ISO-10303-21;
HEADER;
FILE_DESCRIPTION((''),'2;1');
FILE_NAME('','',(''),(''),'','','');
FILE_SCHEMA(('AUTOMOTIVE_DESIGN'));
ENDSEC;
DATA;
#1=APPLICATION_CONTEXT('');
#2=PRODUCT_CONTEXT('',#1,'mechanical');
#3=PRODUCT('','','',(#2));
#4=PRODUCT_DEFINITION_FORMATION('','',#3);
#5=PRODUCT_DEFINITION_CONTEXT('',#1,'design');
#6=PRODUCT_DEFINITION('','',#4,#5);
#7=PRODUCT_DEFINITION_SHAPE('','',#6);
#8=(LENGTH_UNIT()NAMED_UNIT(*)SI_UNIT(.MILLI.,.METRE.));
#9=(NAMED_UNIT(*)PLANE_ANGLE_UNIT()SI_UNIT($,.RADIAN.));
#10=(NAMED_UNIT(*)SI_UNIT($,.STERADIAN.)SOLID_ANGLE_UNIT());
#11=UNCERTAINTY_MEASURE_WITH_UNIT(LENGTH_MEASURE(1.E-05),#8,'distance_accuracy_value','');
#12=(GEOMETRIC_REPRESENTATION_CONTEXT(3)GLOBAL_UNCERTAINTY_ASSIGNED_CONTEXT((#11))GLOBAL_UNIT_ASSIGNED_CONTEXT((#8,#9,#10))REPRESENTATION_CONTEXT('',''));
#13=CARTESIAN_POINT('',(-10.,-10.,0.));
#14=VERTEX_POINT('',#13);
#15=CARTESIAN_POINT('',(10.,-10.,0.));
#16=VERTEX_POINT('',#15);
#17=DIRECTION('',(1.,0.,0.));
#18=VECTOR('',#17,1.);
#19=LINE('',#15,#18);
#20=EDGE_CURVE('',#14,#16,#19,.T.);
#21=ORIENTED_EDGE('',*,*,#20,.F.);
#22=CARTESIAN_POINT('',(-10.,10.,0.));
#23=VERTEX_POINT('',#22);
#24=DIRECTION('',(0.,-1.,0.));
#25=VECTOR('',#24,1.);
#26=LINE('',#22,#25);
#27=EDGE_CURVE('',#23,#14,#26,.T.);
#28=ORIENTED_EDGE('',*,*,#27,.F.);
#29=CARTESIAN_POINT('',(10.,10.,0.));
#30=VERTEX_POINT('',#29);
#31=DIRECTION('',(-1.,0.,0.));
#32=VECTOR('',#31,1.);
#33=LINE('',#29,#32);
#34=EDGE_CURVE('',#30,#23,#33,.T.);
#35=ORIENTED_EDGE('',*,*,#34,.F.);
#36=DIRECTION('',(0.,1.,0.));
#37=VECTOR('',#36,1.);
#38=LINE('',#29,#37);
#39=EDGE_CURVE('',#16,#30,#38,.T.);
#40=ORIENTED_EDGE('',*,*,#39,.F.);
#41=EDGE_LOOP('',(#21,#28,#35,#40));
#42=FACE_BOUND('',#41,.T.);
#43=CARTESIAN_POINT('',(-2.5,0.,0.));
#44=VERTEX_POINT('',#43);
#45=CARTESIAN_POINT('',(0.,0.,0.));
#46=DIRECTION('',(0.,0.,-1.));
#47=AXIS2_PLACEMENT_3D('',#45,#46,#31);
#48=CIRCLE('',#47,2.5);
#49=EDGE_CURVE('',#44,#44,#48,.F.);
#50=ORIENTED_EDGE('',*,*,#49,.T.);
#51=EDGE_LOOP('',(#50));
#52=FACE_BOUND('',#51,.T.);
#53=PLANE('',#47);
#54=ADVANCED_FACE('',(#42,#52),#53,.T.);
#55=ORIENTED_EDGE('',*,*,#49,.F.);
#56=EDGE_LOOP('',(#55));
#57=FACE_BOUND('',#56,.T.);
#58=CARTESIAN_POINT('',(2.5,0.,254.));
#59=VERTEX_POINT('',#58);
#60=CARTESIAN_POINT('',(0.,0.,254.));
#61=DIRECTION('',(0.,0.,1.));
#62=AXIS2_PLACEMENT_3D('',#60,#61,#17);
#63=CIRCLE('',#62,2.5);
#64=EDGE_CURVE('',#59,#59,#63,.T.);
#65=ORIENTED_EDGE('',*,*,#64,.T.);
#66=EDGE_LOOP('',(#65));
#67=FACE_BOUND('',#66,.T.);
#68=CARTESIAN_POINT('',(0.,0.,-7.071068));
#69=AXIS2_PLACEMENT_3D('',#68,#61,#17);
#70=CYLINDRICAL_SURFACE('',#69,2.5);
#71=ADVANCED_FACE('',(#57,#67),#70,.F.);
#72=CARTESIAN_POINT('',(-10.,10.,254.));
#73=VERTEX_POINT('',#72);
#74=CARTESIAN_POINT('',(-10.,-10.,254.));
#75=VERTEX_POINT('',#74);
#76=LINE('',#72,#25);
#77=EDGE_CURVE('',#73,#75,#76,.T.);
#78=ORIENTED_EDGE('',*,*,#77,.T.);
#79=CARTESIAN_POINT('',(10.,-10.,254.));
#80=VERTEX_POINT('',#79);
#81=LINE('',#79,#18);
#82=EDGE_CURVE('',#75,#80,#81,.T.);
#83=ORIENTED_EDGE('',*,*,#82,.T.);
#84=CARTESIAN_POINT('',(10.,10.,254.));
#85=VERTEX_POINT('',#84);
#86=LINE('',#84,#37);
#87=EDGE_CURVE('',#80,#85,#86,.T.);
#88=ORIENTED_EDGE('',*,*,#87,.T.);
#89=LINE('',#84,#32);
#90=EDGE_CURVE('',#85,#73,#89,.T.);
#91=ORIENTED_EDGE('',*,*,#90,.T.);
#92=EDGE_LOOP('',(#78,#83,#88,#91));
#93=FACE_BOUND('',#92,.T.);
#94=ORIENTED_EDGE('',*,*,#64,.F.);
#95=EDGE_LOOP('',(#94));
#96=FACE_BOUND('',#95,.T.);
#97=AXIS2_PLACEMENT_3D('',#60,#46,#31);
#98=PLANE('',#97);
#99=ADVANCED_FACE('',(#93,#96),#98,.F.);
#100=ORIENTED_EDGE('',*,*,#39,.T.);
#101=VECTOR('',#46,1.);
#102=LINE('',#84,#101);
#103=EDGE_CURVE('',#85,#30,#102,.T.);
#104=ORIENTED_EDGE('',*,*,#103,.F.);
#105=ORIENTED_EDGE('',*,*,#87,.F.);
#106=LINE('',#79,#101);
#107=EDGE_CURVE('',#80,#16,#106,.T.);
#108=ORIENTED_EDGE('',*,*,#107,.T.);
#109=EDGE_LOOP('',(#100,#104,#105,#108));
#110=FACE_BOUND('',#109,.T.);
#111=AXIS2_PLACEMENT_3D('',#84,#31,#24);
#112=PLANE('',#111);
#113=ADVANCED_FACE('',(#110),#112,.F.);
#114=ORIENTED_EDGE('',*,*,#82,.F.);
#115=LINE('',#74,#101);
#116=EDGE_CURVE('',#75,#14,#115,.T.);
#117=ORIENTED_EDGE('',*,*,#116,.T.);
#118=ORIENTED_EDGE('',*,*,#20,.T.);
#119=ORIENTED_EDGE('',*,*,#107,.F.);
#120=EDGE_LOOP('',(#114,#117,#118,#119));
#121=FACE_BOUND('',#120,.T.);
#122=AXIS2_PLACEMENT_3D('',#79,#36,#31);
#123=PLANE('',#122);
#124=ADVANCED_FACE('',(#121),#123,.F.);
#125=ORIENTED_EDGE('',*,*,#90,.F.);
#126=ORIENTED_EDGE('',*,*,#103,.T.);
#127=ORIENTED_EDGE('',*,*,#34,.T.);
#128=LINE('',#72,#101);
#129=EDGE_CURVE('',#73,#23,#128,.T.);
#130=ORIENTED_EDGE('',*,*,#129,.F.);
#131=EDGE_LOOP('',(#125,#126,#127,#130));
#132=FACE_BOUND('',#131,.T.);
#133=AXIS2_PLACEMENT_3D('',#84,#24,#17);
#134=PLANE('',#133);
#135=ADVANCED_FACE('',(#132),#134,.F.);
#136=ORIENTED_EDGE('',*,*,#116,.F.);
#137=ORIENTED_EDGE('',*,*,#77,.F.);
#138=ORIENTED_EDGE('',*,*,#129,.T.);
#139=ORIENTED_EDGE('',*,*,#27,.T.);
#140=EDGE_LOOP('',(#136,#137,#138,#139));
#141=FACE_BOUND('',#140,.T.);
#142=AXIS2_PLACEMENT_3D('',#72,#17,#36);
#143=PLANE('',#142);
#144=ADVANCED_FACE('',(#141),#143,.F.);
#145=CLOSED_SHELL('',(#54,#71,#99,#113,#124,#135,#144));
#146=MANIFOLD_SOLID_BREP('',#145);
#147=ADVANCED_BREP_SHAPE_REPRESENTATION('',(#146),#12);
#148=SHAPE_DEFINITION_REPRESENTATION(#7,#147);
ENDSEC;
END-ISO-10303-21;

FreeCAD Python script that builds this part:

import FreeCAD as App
import Part
import Sketcher

V = App.Vector


def add_polygon(sketch, points):
    """Adds a closed chain of lines whose ends are joined by coincident constraints."""
    first, n = sketch.GeometryCount, len(points)
    for a, b in zip(points, points[1:] + points[:1]):
        sketch.addGeometry(Part.LineSegment(App.Vector(*a, 0), App.Vector(*b, 0)), False)
    for i in range(n):
        sketch.addConstraint(Sketcher.Constraint("Coincident", first + i, 2, first + (i + 1) % n, 1))

doc = App.newDocument("Part")
params = doc.addObject("Spreadsheet::Sheet", "Params")
for row, (alias, value) in enumerate([
    ("sketch1_width", "20 mm"),
    ("pad1_length", "254 mm"),
    ("sketch2_diameter", "5 mm"),
    ("pocket1_length", "254 mm"),
], start=1):
    params.set(f"A{row}", alias)
    params.set(f"B{row}", "=" + value)
    params.setAlias(f"B{row}", alias)

body = doc.addObject("PartDesign::Body", "Body")

# Sketch on XY plane
sketch1 = body.newObject("Sketcher::SketchObject", "Sketch")
sketch1.AttachmentSupport = (doc.getObject("XY_Plane"), [""])
sketch1.MapMode = "FlatFace"
add_polygon(sketch1, [(-10, 10), (-10, -10), (10, -10), (10, 10)])  # lines 0-3
sketch1.addConstraint(Sketcher.Constraint("Vertical", 0))
sketch1.addConstraint(Sketcher.Constraint("Horizontal", 1))
sketch1.addConstraint(Sketcher.Constraint("Vertical", 2))
sketch1.addConstraint(Sketcher.Constraint("Horizontal", 3))
sketch1.addConstraint(Sketcher.Constraint("Symmetric", 0, 2, 2, 2, -1, 1))
sketch1.addConstraint(Sketcher.Constraint("Equal", 3, 0))
sketch1.addConstraint(Sketcher.Constraint("DistanceX", 1, 1, 1, 2, 20.0))
sketch1.setExpression("Constraints[10]", "Params.sketch1_width")
pad1 = body.newObject("PartDesign::Pad", "Pad")
pad1.Profile = sketch1
pad1.setExpression("Length", "Params.pad1_length")

# Sketch on XY plane
sketch2 = body.newObject("Sketcher::SketchObject", "Sketch001")
sketch2.AttachmentSupport = (doc.getObject("XY_Plane"), [""])
sketch2.MapMode = "FlatFace"
sketch2.AttachmentOffset = App.Placement(V(0, 0, 254), App.Rotation())
sketch2.addGeometry(Part.Circle(V(0, 0, 0), V(0, 0, 1), 2.5), False)
sketch2.addConstraint(Sketcher.Constraint("Coincident", 0, 3, -1, 1))
sketch2.addConstraint(Sketcher.Constraint("Diameter", 0, 5.0))
sketch2.setExpression("Constraints[1]", "Params.sketch2_diameter")
pocket1 = body.newObject("PartDesign::Pocket", "Pocket")
pocket1.Profile = sketch2
pocket1.setExpression("Length", "Params.pocket1_length")

doc.recompute()
